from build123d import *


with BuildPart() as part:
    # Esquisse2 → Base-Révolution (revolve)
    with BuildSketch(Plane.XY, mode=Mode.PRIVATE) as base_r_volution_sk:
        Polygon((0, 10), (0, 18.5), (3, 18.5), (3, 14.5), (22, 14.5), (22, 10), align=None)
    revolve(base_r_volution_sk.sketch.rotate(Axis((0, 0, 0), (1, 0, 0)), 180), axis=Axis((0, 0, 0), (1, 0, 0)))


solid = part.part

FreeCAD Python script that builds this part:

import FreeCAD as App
import Part
import Sketcher
from FreeCAD import Vector


def add_polygon(sketch, points):
    """Adds a closed chain of lines whose ends are joined by coincident constraints."""
    first, n = sketch.GeometryCount, len(points)
    for a, b in zip(points, points[1:] + points[:1]):
        sketch.addGeometry(Part.LineSegment(App.Vector(*a, 0), App.Vector(*b, 0)), False)
    for i in range(n):
        sketch.addConstraint(Sketcher.Constraint("Coincident", first + i, 2, first + (i + 1) % n, 1))

doc = App.newDocument("Part")
params = doc.addObject("Spreadsheet::Sheet", "Params")
for row, (alias, value) in enumerate([
    ("sketch1_width", "22 mm"),
    ("sketch1_width2", "19 mm"),
    ("sketch1_height", "4 mm"),
    ("sketch1_height2", "8.5 mm"),
    ("revolution_angle", "360 deg"),
], start=1):
    params.set(f"A{row}", alias)
    params.set(f"B{row}", "=" + value)
    params.setAlias(f"B{row}", alias)

body = doc.addObject("PartDesign::Body", "Body")

# Sketch on XY plane
sketch1 = body.newObject("Sketcher::SketchObject", "Sketch")
sketch1.AttachmentSupport = (doc.getObject("XY_Plane"), [""])
sketch1.MapMode = "FlatFace"
add_polygon(sketch1, [(0, 18.5), (0, 10), (22, 10), (22, 14.5), (3, 14.5), (3, 18.5)])  # lines 0-5
sketch1.addConstraint(Sketcher.Constraint("Vertical", 0))
sketch1.addConstraint(Sketcher.Constraint("Horizontal", 1))
sketch1.addConstraint(Sketcher.Constraint("Vertical", 2))
sketch1.addConstraint(Sketcher.Constraint("Horizontal", 3))
sketch1.addConstraint(Sketcher.Constraint("Vertical", 4))
sketch1.addConstraint(Sketcher.Constraint("Horizontal", 5))
sketch1.addConstraint(Sketcher.Constraint("PointOnObject", 0, 2, -2))
sketch1.addConstraint(Sketcher.Constraint("DistanceX", 1, 1, 1, 2, 22.0))
sketch1.addConstraint(Sketcher.Constraint("DistanceX", 3, 2, 3, 1, 19.0))
sketch1.addConstraint(Sketcher.Constraint("DistanceY", 4, 1, 4, 2, 4.0))
sketch1.addConstraint(Sketcher.Constraint("DistanceY", 0, 2, 0, 1, 8.5))
sketch1.addConstraint(Sketcher.Constraint("DistanceY", -1, 1, 0, 2, 10.0))
sketch1.setExpression("Constraints[13]", "Params.sketch1_width")
sketch1.setExpression("Constraints[14]", "Params.sketch1_width2")
sketch1.setExpression("Constraints[15]", "Params.sketch1_height")
sketch1.setExpression("Constraints[16]", "Params.sketch1_height2")
revolution = body.newObject("PartDesign::Revolution", "Revolution")
revolution.Profile = sketch1
revolution.ReferenceAxis = (sketch1, ["H_Axis"])
revolution.setExpression("Angle", "Params.revolution_angle")

doc.recompute()
